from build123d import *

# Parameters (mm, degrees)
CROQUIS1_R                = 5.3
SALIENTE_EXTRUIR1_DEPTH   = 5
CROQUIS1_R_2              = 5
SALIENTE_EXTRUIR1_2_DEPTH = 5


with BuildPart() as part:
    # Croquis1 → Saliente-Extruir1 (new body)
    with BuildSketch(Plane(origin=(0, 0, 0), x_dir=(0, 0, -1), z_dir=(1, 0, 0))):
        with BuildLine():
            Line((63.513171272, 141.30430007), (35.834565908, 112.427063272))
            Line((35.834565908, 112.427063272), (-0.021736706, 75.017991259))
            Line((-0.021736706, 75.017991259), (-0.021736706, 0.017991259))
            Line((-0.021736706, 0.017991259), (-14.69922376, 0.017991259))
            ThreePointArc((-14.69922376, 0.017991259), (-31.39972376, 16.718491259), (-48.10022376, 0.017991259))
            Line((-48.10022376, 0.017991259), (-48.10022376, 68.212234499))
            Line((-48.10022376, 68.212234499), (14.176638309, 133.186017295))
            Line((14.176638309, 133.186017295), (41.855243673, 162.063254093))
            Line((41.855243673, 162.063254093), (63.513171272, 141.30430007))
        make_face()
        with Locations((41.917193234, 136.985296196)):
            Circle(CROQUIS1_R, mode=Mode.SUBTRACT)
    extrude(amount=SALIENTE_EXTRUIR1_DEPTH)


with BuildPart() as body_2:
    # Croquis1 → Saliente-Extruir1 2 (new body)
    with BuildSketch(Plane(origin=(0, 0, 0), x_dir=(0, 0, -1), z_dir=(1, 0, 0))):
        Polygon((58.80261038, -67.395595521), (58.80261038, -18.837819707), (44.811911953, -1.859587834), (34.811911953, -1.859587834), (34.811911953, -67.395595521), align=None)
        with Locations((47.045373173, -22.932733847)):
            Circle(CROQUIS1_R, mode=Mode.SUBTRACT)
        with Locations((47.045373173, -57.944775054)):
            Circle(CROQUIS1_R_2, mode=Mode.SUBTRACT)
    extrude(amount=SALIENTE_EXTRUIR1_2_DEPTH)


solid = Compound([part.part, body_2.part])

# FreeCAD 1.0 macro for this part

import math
import FreeCAD as App
import Part
import Sketcher

V = App.Vector

doc = App.newDocument("Part")
body = doc.addObject("PartDesign::Body", "Body")

# Sketch on YZ plane
sketch1 = body.newObject("Sketcher::SketchObject", "Sketch")
sketch1.AttachmentSupport = (doc.getObject("YZ_Plane"), [""])
sketch1.MapMode = "FlatFace"
sketch1.addGeometry([
    Part.LineSegment(V(112, -36, 0), V(141, -64, 0)),  # 0
    Part.LineSegment(V(141, -64, 0), V(162, -42, 0)),  # 1
    Part.LineSegment(V(162, -42, 0), V(133, -14, 0)),  # 2
    Part.LineSegment(V(133, -14, 0), V(68, 48, 0)),  # 3
    Part.LineSegment(V(68, 48, 0), V(0, 48, 0)),  # 4
    Part.ArcOfCircle(Part.Circle(V(0, 31, 0), V(0, 0, 1), 17), math.radians(-90), math.radians(90)),  # 5
    Part.LineSegment(V(0, 15, 0), V(0, 0, 0)),  # 6
    Part.LineSegment(V(0, 0, 0), V(75, 0, 0)),  # 7
    Part.LineSegment(V(75, 0, 0), V(112, -36, 0)),  # 8
    Part.Circle(V(137, -42, 0), V(0, 0, 1), 5),  # 9
], False)
sketch1.addConstraint([
    Sketcher.Constraint("Coincident", 0, 2, 1, 1),
    Sketcher.Constraint("Coincident", 1, 2, 2, 1),
    Sketcher.Constraint("Coincident", 2, 2, 3, 1),
    Sketcher.Constraint("Coincident", 3, 2, 4, 1),
    Sketcher.Constraint("Tangent", 4, 2, 5, 2),
    Sketcher.Constraint("Coincident", 5, 1, 6, 1),
    Sketcher.Constraint("Coincident", 6, 2, 7, 1),
    Sketcher.Constraint("Coincident", 7, 2, 8, 1),
    Sketcher.Constraint("Coincident", 8, 2, 0, 1),
    Sketcher.Constraint("Horizontal", 4),
    Sketcher.Constraint("Vertical", 6),
    Sketcher.Constraint("Horizontal", 7),
    Sketcher.Constraint("Perpendicular", 0, 1),
    Sketcher.Constraint("Perpendicular", 1, 2),
    Sketcher.Constraint("Parallel", 2, 3),
    Sketcher.Constraint("Parallel", 3, 8),
    Sketcher.Constraint("Vertical", 4, 2, 5, 1),
    Sketcher.Constraint("Equal", 0, 2),
    Sketcher.Constraint("Diameter", 9, 10.6),
    Sketcher.Constraint("DistanceX", 7, 1, 7, 2, 75.0),
    Sketcher.Constraint("Distance", 0, 40.0),
    Sketcher.Constraint("Distance", 1, 30.0),
    Sketcher.Constraint("Distance", 3, 90.0),
    Sketcher.Constraint("Radius", 5, 16.7005),
    Sketcher.Constraint("DistanceX", -1, 1, 0, 2, 141.3043),
    Sketcher.Constraint("DistanceX", 4, 2, 4, 1, 68.194243),
    Sketcher.Constraint("DistanceY", 6, 2, 6, 1, 14.677487),
    Sketcher.Constraint("DistanceY", 0, 2, -1, 1, 63.513171),
    Sketcher.Constraint("DistanceY", 0, 2, 9, 3, 21.595978),
    Sketcher.Constraint("DistanceX", 2, 2, 9, 3, 3.799279),
])
pad1 = body.newObject("PartDesign::Pad", "Pad")
pad1.Profile = sketch1
pad1.Length = 5
body2 = doc.addObject("PartDesign::Body", "Body001")

# Sketch on YZ plane
sketch2 = body2.newObject("Sketcher::SketchObject", "Sketch001")
sketch2.AttachmentSupport = (doc.getObject("YZ_Plane001"), [""])
sketch2.MapMode = "FlatFace"
sketch2.addGeometry([
    Part.LineSegment(V(-67, -59, 0), V(-19, -59, 0)),  # 0
    Part.LineSegment(V(-19, -59, 0), V(-2, -45, 0)),  # 1
    Part.LineSegment(V(-2, -45, 0), V(-2, -35, 0)),  # 2
    Part.LineSegment(V(-2, -35, 0), V(-67, -35, 0)),  # 3
    Part.LineSegment(V(-67, -35, 0), V(-67, -59, 0)),  # 4
    Part.Circle(V(-58, -47, 0), V(0, 0, 1), 5),  # 5
    Part.Circle(V(-23, -47, 0), V(0, 0, 1), 5),  # 6
], False)
sketch2.addConstraint([
    Sketcher.Constraint("Coincident", 0, 2, 1, 1),
    Sketcher.Constraint("Coincident", 1, 2, 2, 1),
    Sketcher.Constraint("Coincident", 2, 2, 3, 1),
    Sketcher.Constraint("Coincident", 3, 2, 4, 1),
    Sketcher.Constraint("Coincident", 4, 2, 0, 1),
    Sketcher.Constraint("Horizontal", 0),
    Sketcher.Constraint("Vertical", 2),
    Sketcher.Constraint("Horizontal", 3),
    Sketcher.Constraint("Vertical", 4),
    Sketcher.Constraint("Horizontal", 5, 3, 6, 3),
    Sketcher.Constraint("Diameter", 5, 10.0),
    Sketcher.Constraint("Diameter", 6, 10.6),
    Sketcher.Constraint("DistanceY", 2, 1, 2, 2, 10.0),
    Sketcher.Constraint("Distance", 1, 22.0),
    Sketcher.Constraint("DistanceY", 4, 2, 4, 1, 23.990698),
    Sketcher.Constraint("DistanceX", 0, 1, 0, 2, 48.557776),
    Sketcher.Constraint("DistanceX", 0, 2, -1, 1, 18.83782),
    Sketcher.Constraint("DistanceY", 0, 2, -1, 1, 58.80261),
    Sketcher.Constraint("DistanceX", 5, 3, 6, 3, 35.012041),
    Sketcher.Constraint("DistanceY", 6, 3, 1, 2, 2.233461),
    Sketcher.Constraint("DistanceX", 3, 2, 5, 3, 9.45082),
])
pad2 = body2.newObject("PartDesign::Pad", "Pad001")
pad2.Profile = sketch2
pad2.Length = 5

doc.recompute()
